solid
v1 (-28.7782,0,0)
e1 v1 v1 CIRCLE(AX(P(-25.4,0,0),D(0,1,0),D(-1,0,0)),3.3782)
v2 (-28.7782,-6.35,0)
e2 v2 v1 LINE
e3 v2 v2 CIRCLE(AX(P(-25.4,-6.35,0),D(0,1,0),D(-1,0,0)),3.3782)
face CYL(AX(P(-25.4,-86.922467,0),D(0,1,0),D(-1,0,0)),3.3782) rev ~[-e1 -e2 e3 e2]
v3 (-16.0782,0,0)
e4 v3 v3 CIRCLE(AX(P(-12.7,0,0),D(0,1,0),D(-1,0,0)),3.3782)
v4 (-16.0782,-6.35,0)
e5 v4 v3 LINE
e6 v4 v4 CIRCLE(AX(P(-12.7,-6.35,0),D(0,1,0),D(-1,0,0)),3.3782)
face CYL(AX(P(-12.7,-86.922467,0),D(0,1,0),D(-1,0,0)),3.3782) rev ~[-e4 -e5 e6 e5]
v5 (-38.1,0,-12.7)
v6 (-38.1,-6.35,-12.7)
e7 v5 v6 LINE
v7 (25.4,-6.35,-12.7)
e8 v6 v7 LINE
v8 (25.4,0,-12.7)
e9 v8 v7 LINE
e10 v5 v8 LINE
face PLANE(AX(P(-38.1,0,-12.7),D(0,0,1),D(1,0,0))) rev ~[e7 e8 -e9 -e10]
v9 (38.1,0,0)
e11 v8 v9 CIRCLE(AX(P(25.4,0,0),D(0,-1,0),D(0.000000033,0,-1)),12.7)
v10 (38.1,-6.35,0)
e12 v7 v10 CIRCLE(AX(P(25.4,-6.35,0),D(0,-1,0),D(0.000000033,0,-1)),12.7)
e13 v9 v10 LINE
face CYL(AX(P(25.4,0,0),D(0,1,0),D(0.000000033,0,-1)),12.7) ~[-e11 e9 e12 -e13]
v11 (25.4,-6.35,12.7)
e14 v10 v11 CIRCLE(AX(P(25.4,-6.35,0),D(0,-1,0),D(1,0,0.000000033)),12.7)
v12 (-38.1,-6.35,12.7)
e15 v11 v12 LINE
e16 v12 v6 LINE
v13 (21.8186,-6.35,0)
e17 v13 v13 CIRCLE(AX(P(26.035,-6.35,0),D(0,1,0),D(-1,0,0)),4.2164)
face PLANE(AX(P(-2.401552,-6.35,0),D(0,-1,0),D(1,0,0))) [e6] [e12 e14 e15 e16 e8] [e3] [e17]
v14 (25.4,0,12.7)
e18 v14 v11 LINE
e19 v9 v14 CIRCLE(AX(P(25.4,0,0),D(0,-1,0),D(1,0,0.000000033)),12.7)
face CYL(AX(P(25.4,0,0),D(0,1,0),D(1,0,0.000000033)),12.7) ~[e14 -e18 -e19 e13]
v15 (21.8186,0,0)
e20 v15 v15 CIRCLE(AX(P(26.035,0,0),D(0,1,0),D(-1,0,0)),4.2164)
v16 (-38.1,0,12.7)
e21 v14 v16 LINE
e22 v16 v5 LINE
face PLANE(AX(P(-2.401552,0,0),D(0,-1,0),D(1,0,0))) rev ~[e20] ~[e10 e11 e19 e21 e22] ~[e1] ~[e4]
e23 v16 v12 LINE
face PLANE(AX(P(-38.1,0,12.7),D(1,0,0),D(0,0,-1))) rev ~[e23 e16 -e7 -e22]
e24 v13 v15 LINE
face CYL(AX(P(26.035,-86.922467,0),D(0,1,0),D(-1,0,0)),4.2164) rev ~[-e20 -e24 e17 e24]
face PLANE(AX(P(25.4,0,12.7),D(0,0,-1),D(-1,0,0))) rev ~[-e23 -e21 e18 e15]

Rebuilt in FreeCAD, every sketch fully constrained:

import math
import FreeCAD as App
import Part
import Sketcher
Q = App.Units.Quantity

doc = App.newDocument("Part")
params = doc.addObject("Spreadsheet::Sheet", "Params")
for row, (alias, value) in enumerate([
    ("sketch1_radius", "0.5 in"),
    ("sketch1_width", "2.5 in"),
    ("pad1_length", "0.25 in"),
    ("sketch2_diameter", "0.332 in"),
    ("hole_diameter", "0.332 in"),
    ("sketch3_diameter", "0.266 in"),
    ("hole2_diameter", "0.266 in"),
], start=1):
    params.set(f"A{row}", alias)
    params.set(f"B{row}", "=" + value)
    params.setAlias(f"B{row}", alias)

body = doc.addObject("PartDesign::Body", "Body")

sketch1 = doc.addObject("Sketcher::SketchObject", "Sketch")
body.addObject(sketch1)
sketch1.AttachmentSupport = (doc.XZ_Plane, [""])
sketch1.MapMode = "FlatFace"
sketch1.addGeometry([
    Part.LineSegment(App.Vector(-38.1, -12.7, 0), App.Vector(25.4, -12.7, 0)),
    Part.ArcOfCircle(Part.Circle(App.Vector(25.4, 0, 0), App.Vector(0, 0, 1), 12.7), math.radians(-89.999998), math.radians(-0.000002)),
    Part.ArcOfCircle(Part.Circle(App.Vector(25.4, 0, 0), App.Vector(0, 0, 1), 12.7), math.radians(0.000002), math.radians(89.999998)),
    Part.LineSegment(App.Vector(25.4, 12.7, 0), App.Vector(-38.1, 12.7, 0)),
    Part.LineSegment(App.Vector(-38.1, 12.7, 0), App.Vector(-38.1, -12.7, 0)),
], False)
sketch1.addConstraint([
    Sketcher.Constraint("Tangent", 0, 2, 1, 1),
    Sketcher.Constraint("Tangent", 1, 2, 2, 1),
    Sketcher.Constraint("Tangent", 2, 2, 3, 1),
    Sketcher.Constraint("Coincident", 3, 2, 4, 1),
    Sketcher.Constraint("Coincident", 4, 2, 0, 1),
    Sketcher.Constraint("Horizontal", 0),
    Sketcher.Constraint("Horizontal", 3),
    Sketcher.Constraint("Vertical", 4),
    Sketcher.Constraint("Equal", 1, 2),
    Sketcher.Constraint("PointOnObject", 1, 3, -1),
    Sketcher.Constraint("PointOnObject", 1, 2, -1),
    Sketcher.Constraint("Radius", 1, Q("0.5 in")),
    Sketcher.Constraint("DistanceX", 0, 1, 0, 2, Q("2.5 in")),
    Sketcher.Constraint("DistanceX", -1, 1, 1, 3, Q("1 in")),
])
sketch1.setExpression("Constraints[11]", "Params.sketch1_radius")
sketch1.setExpression("Constraints[12]", "Params.sketch1_width")
pad1 = doc.addObject("PartDesign::Pad", "Pad")
body.addObject(pad1)
pad1.Profile = sketch1
pad1.setExpression("Length", "Params.pad1_length")

sketch2 = doc.addObject("Sketcher::SketchObject", "Sketch001")
body.addObject(sketch2)
sketch2.AttachmentSupport = (doc.XZ_Plane, [""])
sketch2.MapMode = "FlatFace"
sketch2.AttachmentOffset = App.Placement(App.Vector(0, 0, 0.25 * 25.4), App.Rotation())
sketch2.addGeometry(Part.Circle(App.Vector(26.035, 0, 0), App.Vector(0, 0, 1), 4.2164), False)
sketch2.addConstraint([
    Sketcher.Constraint("PointOnObject", 0, 3, -1),
    Sketcher.Constraint("Diameter", 0, Q("0.332 in")),
    Sketcher.Constraint("DistanceX", -1, 1, 0, 3, Q("1.025 in")),
])
sketch2.setExpression("Constraints[1]", "Params.sketch2_diameter")
doc.recompute()
hole = doc.addObject("PartDesign::Hole", "Hole")
body.addObject(hole)
hole.Profile = sketch2
hole.ThreadType = "None"
hole.setExpression("Diameter", "Params.hole_diameter")
hole.DepthType = "ThroughAll"

sketch3 = doc.addObject("Sketcher::SketchObject", "Sketch002")
body.addObject(sketch3)
sketch3.AttachmentSupport = (doc.XZ_Plane, [""])
sketch3.MapMode = "FlatFace"
sketch3.AttachmentOffset = App.Placement(App.Vector(0, 0, 0.25 * 25.4), App.Rotation())
sketch3.addGeometry([
    Part.Circle(App.Vector(-25.4, 0, 0), App.Vector(0, 0, 1), 3.3782),
    Part.Circle(App.Vector(-12.7, 0, 0), App.Vector(0, 0, 1), 3.3782),
], False)
sketch3.addConstraint([
    Sketcher.Constraint("Equal", 0, 1),
    Sketcher.Constraint("PointOnObject", 0, 3, -1),
    Sketcher.Constraint("PointOnObject", 1, 3, -1),
    Sketcher.Constraint("Diameter", 0, Q("0.266 in")),
    Sketcher.Constraint("DistanceX", 0, 3, -1, 1, Q("1 in")),
    Sketcher.Constraint("DistanceX", 1, 3, -1, 1, Q("0.5 in")),
])
sketch3.setExpression("Constraints[3]", "Params.sketch3_diameter")
doc.recompute()
hole2 = doc.addObject("PartDesign::Hole", "Hole001")
body.addObject(hole2)
hole2.Profile = sketch3
hole2.ThreadType = "None"
hole2.setExpression("Diameter", "Params.hole2_diameter")
hole2.DepthType = "ThroughAll"

doc.recompute()
